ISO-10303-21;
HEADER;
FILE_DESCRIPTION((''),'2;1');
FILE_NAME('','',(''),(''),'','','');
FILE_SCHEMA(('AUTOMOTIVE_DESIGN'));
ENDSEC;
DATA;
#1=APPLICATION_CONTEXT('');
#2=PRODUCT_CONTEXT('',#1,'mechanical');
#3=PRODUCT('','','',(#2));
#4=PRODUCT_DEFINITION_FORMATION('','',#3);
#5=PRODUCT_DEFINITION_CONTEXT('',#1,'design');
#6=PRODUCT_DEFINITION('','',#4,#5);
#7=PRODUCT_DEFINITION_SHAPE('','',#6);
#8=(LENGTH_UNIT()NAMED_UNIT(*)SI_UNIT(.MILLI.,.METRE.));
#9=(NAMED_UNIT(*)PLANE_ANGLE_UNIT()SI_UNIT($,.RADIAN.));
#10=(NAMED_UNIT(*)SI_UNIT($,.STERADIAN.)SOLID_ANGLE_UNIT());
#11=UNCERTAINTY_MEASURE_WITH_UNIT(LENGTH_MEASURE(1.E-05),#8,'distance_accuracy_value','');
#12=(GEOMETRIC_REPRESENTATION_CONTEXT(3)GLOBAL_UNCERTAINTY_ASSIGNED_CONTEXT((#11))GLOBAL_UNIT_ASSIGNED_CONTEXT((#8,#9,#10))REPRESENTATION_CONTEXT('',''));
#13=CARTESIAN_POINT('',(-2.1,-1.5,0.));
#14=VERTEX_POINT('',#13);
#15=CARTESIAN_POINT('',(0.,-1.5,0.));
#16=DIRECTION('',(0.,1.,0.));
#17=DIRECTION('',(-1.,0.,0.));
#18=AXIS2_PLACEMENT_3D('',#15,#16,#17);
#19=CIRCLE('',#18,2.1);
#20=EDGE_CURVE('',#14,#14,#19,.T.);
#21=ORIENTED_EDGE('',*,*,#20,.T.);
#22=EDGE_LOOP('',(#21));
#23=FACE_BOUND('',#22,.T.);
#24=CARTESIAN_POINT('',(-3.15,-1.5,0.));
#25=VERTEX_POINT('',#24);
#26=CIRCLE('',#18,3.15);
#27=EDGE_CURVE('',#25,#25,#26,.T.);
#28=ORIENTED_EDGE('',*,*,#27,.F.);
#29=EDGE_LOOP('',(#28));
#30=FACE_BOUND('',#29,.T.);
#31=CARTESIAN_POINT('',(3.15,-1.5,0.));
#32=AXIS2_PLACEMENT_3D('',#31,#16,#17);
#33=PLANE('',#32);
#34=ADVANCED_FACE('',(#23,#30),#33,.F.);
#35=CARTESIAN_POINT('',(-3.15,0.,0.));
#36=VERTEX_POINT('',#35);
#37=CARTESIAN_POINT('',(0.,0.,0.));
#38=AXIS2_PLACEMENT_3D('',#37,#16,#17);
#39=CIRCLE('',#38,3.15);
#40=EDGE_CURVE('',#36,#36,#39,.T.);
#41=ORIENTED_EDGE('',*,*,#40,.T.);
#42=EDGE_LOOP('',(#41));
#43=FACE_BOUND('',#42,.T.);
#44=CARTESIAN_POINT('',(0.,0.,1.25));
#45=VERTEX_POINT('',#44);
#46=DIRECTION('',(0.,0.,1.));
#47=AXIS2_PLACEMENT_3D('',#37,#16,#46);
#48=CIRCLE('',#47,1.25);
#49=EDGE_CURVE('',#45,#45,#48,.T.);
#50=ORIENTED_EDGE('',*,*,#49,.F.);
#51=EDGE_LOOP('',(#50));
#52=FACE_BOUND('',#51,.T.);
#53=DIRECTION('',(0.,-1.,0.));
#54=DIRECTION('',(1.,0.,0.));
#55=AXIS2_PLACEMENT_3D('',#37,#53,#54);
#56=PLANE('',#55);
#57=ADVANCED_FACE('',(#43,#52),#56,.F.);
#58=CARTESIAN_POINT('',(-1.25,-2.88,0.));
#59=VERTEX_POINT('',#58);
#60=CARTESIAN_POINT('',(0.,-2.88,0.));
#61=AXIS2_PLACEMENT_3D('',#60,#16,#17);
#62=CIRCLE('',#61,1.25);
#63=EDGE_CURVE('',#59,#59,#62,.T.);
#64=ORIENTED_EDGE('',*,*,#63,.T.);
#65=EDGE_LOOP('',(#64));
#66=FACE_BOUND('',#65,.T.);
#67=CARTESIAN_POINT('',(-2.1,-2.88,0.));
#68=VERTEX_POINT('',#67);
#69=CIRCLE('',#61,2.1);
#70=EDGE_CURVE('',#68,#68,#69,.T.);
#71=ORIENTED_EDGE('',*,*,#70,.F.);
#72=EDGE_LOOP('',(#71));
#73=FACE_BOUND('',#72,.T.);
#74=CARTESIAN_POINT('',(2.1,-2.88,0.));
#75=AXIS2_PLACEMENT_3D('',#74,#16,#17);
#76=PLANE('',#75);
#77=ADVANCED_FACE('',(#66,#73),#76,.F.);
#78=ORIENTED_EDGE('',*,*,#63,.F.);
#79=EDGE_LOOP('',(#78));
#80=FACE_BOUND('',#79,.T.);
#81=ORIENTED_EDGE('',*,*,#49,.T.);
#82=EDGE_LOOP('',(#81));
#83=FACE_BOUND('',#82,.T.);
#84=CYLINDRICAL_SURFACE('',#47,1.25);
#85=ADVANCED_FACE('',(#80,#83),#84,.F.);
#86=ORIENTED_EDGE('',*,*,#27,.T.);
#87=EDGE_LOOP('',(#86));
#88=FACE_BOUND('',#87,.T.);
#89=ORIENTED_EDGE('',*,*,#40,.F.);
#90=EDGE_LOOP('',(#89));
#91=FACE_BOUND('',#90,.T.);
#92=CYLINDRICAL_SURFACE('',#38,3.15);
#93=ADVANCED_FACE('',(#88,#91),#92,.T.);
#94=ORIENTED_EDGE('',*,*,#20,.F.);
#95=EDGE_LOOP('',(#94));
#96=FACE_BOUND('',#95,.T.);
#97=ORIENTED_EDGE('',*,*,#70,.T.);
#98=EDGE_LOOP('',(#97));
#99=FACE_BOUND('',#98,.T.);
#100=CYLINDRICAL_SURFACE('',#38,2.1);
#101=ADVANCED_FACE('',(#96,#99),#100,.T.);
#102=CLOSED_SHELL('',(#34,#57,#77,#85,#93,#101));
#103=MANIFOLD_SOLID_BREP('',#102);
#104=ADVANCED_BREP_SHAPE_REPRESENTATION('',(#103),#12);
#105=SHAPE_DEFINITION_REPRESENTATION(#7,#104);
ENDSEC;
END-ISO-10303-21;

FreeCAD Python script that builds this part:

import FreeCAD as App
import Part
import Sketcher
Q = App.Units.Quantity


def add_polygon(sketch, points):
    """Adds a closed chain of lines whose ends are joined by coincident constraints."""
    first, n = sketch.GeometryCount, len(points)
    for a, b in zip(points, points[1:] + points[:1]):
        sketch.addGeometry(Part.LineSegment(App.Vector(*a, 0), App.Vector(*b, 0)), False)
    for i in range(n):
        sketch.addConstraint(Sketcher.Constraint("Coincident", first + i, 2, first + (i + 1) % n, 1))

doc = App.newDocument("Part")
body = doc.addObject("PartDesign::Body", "Body")

sketch1 = doc.addObject("Sketcher::SketchObject", "Sketch")
body.addObject(sketch1)
sketch1.AttachmentSupport = (doc.XY_Plane, [""])
sketch1.MapMode = "FlatFace"
add_polygon(sketch1, [(3.1, 0), (0, 0), (0, -2.9), (2.1, -2.9), (2.1, -1.5), (3.1, -1.5)])
sketch1.addConstraint(Sketcher.Constraint("Horizontal", 0))
sketch1.addConstraint(Sketcher.Constraint("Vertical", 1))
sketch1.addConstraint(Sketcher.Constraint("Horizontal", 2))
sketch1.addConstraint(Sketcher.Constraint("Vertical", 3))
sketch1.addConstraint(Sketcher.Constraint("Horizontal", 4))
sketch1.addConstraint(Sketcher.Constraint("Vertical", 5))
sketch1.addConstraint(Sketcher.Constraint("Coincident", 0, 2, -1, 1))
sketch1.addConstraint(Sketcher.Constraint("DistanceX", 2, 1, 2, 2, Q("2.1 mm")))
sketch1.addConstraint(Sketcher.Constraint("DistanceY", 5, 1, 5, 2, Q("1.5 mm")))
sketch1.addConstraint(Sketcher.Constraint("DistanceX", 0, 2, 0, 1, Q("3.15 mm")))
sketch1.addConstraint(Sketcher.Constraint("DistanceY", 1, 2, 1, 1, Q("2.88 mm")))
revolution = doc.addObject("PartDesign::Revolution", "Revolution")
body.addObject(revolution)
revolution.Profile = sketch1
revolution.ReferenceAxis = (sketch1, ["V_Axis"])
revolution.Angle = 360

sketch2 = doc.addObject("Sketcher::SketchObject", "Sketch001")
body.addObject(sketch2)
sketch2.AttachmentSupport = (doc.XZ_Plane, [""])
sketch2.MapMode = "FlatFace"
sketch2.addGeometry(Part.Circle(App.Vector(0, 0, 0), App.Vector(0, 0, 1), 1.2), False)
sketch2.addConstraint(Sketcher.Constraint("Coincident", 0, 3, -1, 1))
sketch2.addConstraint(Sketcher.Constraint("Diameter", 0, Q("2.5 mm")))
doc.recompute()
hole = doc.addObject("PartDesign::Hole", "Hole")
body.addObject(hole)
hole.Profile = sketch2
hole.ThreadType = "None"
hole.Diameter = 2.5
hole.DepthType = "Dimension"
hole.Depth = 10
hole.DrillPoint = "Angled"
hole.DrillPointAngle = 118
hole.Reversed = True

doc.recompute()
